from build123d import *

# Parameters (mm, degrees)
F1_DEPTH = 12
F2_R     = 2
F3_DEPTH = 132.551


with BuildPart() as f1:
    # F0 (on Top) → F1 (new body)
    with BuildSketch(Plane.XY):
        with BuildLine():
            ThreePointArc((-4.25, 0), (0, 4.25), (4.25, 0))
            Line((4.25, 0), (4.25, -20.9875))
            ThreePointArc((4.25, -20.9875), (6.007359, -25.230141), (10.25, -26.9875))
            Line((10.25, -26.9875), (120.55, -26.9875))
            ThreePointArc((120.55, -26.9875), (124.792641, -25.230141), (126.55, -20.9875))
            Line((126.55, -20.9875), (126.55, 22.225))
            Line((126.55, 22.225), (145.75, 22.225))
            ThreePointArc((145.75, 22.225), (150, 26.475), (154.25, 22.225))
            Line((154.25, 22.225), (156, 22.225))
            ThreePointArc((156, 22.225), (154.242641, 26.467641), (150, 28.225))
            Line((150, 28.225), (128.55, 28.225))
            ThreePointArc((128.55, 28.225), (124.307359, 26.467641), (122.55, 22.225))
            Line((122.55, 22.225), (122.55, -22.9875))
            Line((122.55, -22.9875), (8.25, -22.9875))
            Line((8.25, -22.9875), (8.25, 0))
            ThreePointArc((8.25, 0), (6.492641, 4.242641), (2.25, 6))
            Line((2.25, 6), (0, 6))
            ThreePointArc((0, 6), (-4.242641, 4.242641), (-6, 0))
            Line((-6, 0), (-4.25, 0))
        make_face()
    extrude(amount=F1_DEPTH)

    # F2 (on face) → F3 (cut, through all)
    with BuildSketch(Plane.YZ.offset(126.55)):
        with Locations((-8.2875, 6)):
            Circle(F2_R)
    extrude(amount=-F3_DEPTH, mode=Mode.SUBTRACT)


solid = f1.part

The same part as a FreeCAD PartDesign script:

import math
import FreeCAD as App
import Part
import Sketcher
from FreeCAD import Vector
Q = App.Units.Quantity

doc = App.newDocument("Part")
body = doc.addObject("PartDesign::Body", "Body")

sketch1 = body.newObject("Sketcher::SketchObject", "Sketch")
sketch1.AttachmentSupport = (doc.getObject("XY_Plane"), [""])
sketch1.MapMode = "FlatFace"
sketch1.addGeometry([
    Part.ArcOfCircle(Part.Circle(Vector(0, 0, 0), Vector(0, 0, 1), 4.2), math.radians(0), math.radians(180)),
    Part.LineSegment(Vector(4.2, 0, 0), Vector(4.2, -21, 0)),
    Part.ArcOfCircle(Part.Circle(Vector(10.2, -21, 0), Vector(0, 0, 1), 6), math.radians(180), math.radians(270)),
    Part.LineSegment(Vector(10.2, -27, 0), Vector(120.5, -27, 0)),
    Part.ArcOfCircle(Part.Circle(Vector(120.6, -21, 0), Vector(0, 0, 1), 6), math.radians(-90), math.radians(0)),
    Part.LineSegment(Vector(126.5, -21, 0), Vector(126.5, 22.2, 0)),
    Part.LineSegment(Vector(126.5, 22.2, 0), Vector(145.8, 22.2, 0)),
    Part.ArcOfCircle(Part.Circle(Vector(150, 22.2, 0), Vector(0, 0, 1), 4.2), math.radians(0), math.radians(180)),
    Part.LineSegment(Vector(154.2, 22.2, 0), Vector(156, 22.2, 0)),
    Part.ArcOfCircle(Part.Circle(Vector(150, 22.2, 0), Vector(0, 0, 1), 6), math.radians(0), math.radians(90)),
    Part.LineSegment(Vector(150, 28.2, 0), Vector(128.6, 28.2, 0)),
    Part.ArcOfCircle(Part.Circle(Vector(128.5, 22.2, 0), Vector(0, 0, 1), 6), math.radians(90), math.radians(180)),
    Part.LineSegment(Vector(122.5, 22.2, 0), Vector(122.5, -23, 0)),
    Part.LineSegment(Vector(122.5, -23, 0), Vector(8.2, -23, 0)),
    Part.LineSegment(Vector(8.2, -23, 0), Vector(8.2, 0, 0)),
    Part.ArcOfCircle(Part.Circle(Vector(2.3, 0, 0), Vector(0, 0, 1), 6), math.radians(0), math.radians(90)),
    Part.LineSegment(Vector(2.2, 6, 0), Vector(0, 6, 0)),
    Part.ArcOfCircle(Part.Circle(Vector(0, 0, 0), Vector(0, 0, 1), 6), math.radians(90), math.radians(180)),
    Part.LineSegment(Vector(-6, 0, 0), Vector(-4.2, 0, 0)),
], False)
sketch1.addConstraint([
    Sketcher.Constraint("Tangent", 0, 1, 1, 1),
    Sketcher.Constraint("Tangent", 1, 2, 2, 1),
    Sketcher.Constraint("Tangent", 2, 2, 3, 1),
    Sketcher.Constraint("Tangent", 3, 2, 4, 1),
    Sketcher.Constraint("Tangent", 4, 2, 5, 1),
    Sketcher.Constraint("Coincident", 5, 2, 6, 1),
    Sketcher.Constraint("Coincident", 6, 2, 7, 2),
    Sketcher.Constraint("Coincident", 7, 1, 8, 1),
    Sketcher.Constraint("Coincident", 8, 2, 9, 1),
    Sketcher.Constraint("Tangent", 9, 2, 10, 1),
    Sketcher.Constraint("Tangent", 10, 2, 11, 1),
    Sketcher.Constraint("Tangent", 11, 2, 12, 1),
    Sketcher.Constraint("Coincident", 12, 2, 13, 1),
    Sketcher.Constraint("Coincident", 13, 2, 14, 1),
    Sketcher.Constraint("Tangent", 14, 2, 15, 1),
    Sketcher.Constraint("Tangent", 15, 2, 16, 1),
    Sketcher.Constraint("Tangent", 16, 2, 17, 1),
    Sketcher.Constraint("Coincident", 17, 2, 18, 1),
    Sketcher.Constraint("Coincident", 18, 2, 0, 2),
    Sketcher.Constraint("Vertical", 1),
    Sketcher.Constraint("Horizontal", 3),
    Sketcher.Constraint("Vertical", 5),
    Sketcher.Constraint("Horizontal", 6),
    Sketcher.Constraint("Horizontal", 8),
    Sketcher.Constraint("Horizontal", 10),
    Sketcher.Constraint("Vertical", 12),
    Sketcher.Constraint("Horizontal", 13),
    Sketcher.Constraint("Vertical", 14),
    Sketcher.Constraint("Horizontal", 16),
    Sketcher.Constraint("Horizontal", 18),
    Sketcher.Constraint("Coincident", 0, 3, -1, 1),
    Sketcher.Constraint("Coincident", 17, 3, -1, 1),
    Sketcher.Constraint("Coincident", 9, 3, 7, 3),
    Sketcher.Constraint("Equal", 2, 4),
    Sketcher.Constraint("Equal", 0, 7),
    Sketcher.Constraint("Equal", 4, 9),
    Sketcher.Constraint("Equal", 9, 11),
    Sketcher.Constraint("Equal", 11, 15),
    Sketcher.Constraint("Equal", 15, 17),
    Sketcher.Constraint("PointOnObject", 17, 2, -1),
    Sketcher.Constraint("Horizontal", 11, 3, 5, 2),
    Sketcher.Constraint("Horizontal", 6, 2, 7, 1),
    Sketcher.Constraint("Radius", 2, Q("5.999999 mm")),
    Sketcher.Constraint("Radius", 0, Q("4.25 mm")),
    Sketcher.Constraint("DistanceX", 3, 1, 3, 2, Q("110.3 mm")),
    Sketcher.Constraint("DistanceX", 6, 1, 6, 2, Q("19.2 mm")),
    Sketcher.Constraint("DistanceX", 13, 2, 13, 1, Q("114.3 mm")),
    Sketcher.Constraint("DistanceX", 15, 3, 0, 1, Q("1.999999 mm")),
    Sketcher.Constraint("DistanceY", 12, 2, 4, 3, Q("1.999999 mm")),
    Sketcher.Constraint("DistanceY", 1, 2, 1, 1, Q("20.9875 mm")),
    Sketcher.Constraint("DistanceY", 5, 1, 5, 2, Q("43.2125 mm")),
])
pad1 = body.newObject("PartDesign::Pad", "Pad")
pad1.Profile = sketch1
pad1.Length = 12

sketch2 = body.newObject("Sketcher::SketchObject", "Sketch001")
sketch2.AttachmentSupport = (doc.getObject("YZ_Plane"), [""])
sketch2.MapMode = "FlatFace"
sketch2.AttachmentOffset = App.Placement(Vector(0, 0, 126.55), App.Rotation())
sketch2.addGeometry(Part.Circle(Vector(-8.3, 6, 0), Vector(0, 0, 1), 2), False)
sketch2.addConstraint([
    Sketcher.Constraint("Diameter", 0, Q("4 mm")),
    Sketcher.Constraint("DistanceY", -1, 1, 0, 3, Q("6 mm")),
    Sketcher.Constraint("DistanceX", 0, 3, -1, 1, Q("8.2875 mm")),
])
pocket1 = body.newObject("PartDesign::Pocket", "Pocket")
pocket1.Profile = sketch2
pocket1.Type = "ThroughAll"

doc.recompute()
